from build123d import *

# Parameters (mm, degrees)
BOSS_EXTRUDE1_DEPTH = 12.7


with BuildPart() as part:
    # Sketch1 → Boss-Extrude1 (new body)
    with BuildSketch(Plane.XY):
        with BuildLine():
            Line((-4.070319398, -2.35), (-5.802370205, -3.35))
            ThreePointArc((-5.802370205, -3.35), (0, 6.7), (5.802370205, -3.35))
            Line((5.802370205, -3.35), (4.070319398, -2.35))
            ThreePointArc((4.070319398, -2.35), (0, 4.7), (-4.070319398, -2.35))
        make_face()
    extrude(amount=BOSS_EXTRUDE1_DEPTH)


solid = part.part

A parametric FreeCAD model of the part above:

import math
import FreeCAD as App
import Part
import Sketcher
Q = App.Units.Quantity

doc = App.newDocument("Part")
body = doc.addObject("PartDesign::Body", "Body")

# Sketch on XY plane
sketch1 = body.newObject("Sketcher::SketchObject", "Sketch")
sketch1.AttachmentSupport = (doc.getObject("XY_Plane"), [""])
sketch1.MapMode = "FlatFace"
sketch1.addGeometry([
    Part.LineSegment(App.Vector(-5.80237, -3.35, 0), App.Vector(-4.070319, -2.35, 0)),
    Part.ArcOfCircle(Part.Circle(App.Vector(0, 0, 0), App.Vector(0, 0, 1), 4.7), math.radians(-30), math.radians(210)),
    Part.LineSegment(App.Vector(4.070319, -2.35, 0), App.Vector(5.80237, -3.35, 0)),
    Part.ArcOfCircle(Part.Circle(App.Vector(0, 0, 0), App.Vector(0, 0, 1), 6.7), math.radians(-30), math.radians(210)),
], False)
sketch1.addConstraint([
    Sketcher.Constraint("Coincident", 0, 2, 1, 2),
    Sketcher.Constraint("Coincident", 1, 1, 2, 1),
    Sketcher.Constraint("Coincident", 2, 2, 3, 1),
    Sketcher.Constraint("Coincident", 3, 2, 0, 1),
    Sketcher.Constraint("Coincident", 1, 3, -1, 1),
    Sketcher.Constraint("Coincident", 3, 3, -1, 1),
    Sketcher.Constraint("Horizontal", 0, 2, 1, 1),
    Sketcher.Constraint("Horizontal", 2, 2, 3, 2),
    Sketcher.Constraint("Radius", 1, Q("4.7 mm")),
    Sketcher.Constraint("Radius", 3, Q("6.7 mm")),
    Sketcher.Constraint("Angle", 0, Q("30 deg")),
    Sketcher.Constraint("DistanceY", 0, 2, -1, 1, Q("2.35 mm")),
])
pad1 = body.newObject("PartDesign::Pad", "Pad")
pad1.Profile = sketch1
pad1.Length = 12.7

doc.recompute()
